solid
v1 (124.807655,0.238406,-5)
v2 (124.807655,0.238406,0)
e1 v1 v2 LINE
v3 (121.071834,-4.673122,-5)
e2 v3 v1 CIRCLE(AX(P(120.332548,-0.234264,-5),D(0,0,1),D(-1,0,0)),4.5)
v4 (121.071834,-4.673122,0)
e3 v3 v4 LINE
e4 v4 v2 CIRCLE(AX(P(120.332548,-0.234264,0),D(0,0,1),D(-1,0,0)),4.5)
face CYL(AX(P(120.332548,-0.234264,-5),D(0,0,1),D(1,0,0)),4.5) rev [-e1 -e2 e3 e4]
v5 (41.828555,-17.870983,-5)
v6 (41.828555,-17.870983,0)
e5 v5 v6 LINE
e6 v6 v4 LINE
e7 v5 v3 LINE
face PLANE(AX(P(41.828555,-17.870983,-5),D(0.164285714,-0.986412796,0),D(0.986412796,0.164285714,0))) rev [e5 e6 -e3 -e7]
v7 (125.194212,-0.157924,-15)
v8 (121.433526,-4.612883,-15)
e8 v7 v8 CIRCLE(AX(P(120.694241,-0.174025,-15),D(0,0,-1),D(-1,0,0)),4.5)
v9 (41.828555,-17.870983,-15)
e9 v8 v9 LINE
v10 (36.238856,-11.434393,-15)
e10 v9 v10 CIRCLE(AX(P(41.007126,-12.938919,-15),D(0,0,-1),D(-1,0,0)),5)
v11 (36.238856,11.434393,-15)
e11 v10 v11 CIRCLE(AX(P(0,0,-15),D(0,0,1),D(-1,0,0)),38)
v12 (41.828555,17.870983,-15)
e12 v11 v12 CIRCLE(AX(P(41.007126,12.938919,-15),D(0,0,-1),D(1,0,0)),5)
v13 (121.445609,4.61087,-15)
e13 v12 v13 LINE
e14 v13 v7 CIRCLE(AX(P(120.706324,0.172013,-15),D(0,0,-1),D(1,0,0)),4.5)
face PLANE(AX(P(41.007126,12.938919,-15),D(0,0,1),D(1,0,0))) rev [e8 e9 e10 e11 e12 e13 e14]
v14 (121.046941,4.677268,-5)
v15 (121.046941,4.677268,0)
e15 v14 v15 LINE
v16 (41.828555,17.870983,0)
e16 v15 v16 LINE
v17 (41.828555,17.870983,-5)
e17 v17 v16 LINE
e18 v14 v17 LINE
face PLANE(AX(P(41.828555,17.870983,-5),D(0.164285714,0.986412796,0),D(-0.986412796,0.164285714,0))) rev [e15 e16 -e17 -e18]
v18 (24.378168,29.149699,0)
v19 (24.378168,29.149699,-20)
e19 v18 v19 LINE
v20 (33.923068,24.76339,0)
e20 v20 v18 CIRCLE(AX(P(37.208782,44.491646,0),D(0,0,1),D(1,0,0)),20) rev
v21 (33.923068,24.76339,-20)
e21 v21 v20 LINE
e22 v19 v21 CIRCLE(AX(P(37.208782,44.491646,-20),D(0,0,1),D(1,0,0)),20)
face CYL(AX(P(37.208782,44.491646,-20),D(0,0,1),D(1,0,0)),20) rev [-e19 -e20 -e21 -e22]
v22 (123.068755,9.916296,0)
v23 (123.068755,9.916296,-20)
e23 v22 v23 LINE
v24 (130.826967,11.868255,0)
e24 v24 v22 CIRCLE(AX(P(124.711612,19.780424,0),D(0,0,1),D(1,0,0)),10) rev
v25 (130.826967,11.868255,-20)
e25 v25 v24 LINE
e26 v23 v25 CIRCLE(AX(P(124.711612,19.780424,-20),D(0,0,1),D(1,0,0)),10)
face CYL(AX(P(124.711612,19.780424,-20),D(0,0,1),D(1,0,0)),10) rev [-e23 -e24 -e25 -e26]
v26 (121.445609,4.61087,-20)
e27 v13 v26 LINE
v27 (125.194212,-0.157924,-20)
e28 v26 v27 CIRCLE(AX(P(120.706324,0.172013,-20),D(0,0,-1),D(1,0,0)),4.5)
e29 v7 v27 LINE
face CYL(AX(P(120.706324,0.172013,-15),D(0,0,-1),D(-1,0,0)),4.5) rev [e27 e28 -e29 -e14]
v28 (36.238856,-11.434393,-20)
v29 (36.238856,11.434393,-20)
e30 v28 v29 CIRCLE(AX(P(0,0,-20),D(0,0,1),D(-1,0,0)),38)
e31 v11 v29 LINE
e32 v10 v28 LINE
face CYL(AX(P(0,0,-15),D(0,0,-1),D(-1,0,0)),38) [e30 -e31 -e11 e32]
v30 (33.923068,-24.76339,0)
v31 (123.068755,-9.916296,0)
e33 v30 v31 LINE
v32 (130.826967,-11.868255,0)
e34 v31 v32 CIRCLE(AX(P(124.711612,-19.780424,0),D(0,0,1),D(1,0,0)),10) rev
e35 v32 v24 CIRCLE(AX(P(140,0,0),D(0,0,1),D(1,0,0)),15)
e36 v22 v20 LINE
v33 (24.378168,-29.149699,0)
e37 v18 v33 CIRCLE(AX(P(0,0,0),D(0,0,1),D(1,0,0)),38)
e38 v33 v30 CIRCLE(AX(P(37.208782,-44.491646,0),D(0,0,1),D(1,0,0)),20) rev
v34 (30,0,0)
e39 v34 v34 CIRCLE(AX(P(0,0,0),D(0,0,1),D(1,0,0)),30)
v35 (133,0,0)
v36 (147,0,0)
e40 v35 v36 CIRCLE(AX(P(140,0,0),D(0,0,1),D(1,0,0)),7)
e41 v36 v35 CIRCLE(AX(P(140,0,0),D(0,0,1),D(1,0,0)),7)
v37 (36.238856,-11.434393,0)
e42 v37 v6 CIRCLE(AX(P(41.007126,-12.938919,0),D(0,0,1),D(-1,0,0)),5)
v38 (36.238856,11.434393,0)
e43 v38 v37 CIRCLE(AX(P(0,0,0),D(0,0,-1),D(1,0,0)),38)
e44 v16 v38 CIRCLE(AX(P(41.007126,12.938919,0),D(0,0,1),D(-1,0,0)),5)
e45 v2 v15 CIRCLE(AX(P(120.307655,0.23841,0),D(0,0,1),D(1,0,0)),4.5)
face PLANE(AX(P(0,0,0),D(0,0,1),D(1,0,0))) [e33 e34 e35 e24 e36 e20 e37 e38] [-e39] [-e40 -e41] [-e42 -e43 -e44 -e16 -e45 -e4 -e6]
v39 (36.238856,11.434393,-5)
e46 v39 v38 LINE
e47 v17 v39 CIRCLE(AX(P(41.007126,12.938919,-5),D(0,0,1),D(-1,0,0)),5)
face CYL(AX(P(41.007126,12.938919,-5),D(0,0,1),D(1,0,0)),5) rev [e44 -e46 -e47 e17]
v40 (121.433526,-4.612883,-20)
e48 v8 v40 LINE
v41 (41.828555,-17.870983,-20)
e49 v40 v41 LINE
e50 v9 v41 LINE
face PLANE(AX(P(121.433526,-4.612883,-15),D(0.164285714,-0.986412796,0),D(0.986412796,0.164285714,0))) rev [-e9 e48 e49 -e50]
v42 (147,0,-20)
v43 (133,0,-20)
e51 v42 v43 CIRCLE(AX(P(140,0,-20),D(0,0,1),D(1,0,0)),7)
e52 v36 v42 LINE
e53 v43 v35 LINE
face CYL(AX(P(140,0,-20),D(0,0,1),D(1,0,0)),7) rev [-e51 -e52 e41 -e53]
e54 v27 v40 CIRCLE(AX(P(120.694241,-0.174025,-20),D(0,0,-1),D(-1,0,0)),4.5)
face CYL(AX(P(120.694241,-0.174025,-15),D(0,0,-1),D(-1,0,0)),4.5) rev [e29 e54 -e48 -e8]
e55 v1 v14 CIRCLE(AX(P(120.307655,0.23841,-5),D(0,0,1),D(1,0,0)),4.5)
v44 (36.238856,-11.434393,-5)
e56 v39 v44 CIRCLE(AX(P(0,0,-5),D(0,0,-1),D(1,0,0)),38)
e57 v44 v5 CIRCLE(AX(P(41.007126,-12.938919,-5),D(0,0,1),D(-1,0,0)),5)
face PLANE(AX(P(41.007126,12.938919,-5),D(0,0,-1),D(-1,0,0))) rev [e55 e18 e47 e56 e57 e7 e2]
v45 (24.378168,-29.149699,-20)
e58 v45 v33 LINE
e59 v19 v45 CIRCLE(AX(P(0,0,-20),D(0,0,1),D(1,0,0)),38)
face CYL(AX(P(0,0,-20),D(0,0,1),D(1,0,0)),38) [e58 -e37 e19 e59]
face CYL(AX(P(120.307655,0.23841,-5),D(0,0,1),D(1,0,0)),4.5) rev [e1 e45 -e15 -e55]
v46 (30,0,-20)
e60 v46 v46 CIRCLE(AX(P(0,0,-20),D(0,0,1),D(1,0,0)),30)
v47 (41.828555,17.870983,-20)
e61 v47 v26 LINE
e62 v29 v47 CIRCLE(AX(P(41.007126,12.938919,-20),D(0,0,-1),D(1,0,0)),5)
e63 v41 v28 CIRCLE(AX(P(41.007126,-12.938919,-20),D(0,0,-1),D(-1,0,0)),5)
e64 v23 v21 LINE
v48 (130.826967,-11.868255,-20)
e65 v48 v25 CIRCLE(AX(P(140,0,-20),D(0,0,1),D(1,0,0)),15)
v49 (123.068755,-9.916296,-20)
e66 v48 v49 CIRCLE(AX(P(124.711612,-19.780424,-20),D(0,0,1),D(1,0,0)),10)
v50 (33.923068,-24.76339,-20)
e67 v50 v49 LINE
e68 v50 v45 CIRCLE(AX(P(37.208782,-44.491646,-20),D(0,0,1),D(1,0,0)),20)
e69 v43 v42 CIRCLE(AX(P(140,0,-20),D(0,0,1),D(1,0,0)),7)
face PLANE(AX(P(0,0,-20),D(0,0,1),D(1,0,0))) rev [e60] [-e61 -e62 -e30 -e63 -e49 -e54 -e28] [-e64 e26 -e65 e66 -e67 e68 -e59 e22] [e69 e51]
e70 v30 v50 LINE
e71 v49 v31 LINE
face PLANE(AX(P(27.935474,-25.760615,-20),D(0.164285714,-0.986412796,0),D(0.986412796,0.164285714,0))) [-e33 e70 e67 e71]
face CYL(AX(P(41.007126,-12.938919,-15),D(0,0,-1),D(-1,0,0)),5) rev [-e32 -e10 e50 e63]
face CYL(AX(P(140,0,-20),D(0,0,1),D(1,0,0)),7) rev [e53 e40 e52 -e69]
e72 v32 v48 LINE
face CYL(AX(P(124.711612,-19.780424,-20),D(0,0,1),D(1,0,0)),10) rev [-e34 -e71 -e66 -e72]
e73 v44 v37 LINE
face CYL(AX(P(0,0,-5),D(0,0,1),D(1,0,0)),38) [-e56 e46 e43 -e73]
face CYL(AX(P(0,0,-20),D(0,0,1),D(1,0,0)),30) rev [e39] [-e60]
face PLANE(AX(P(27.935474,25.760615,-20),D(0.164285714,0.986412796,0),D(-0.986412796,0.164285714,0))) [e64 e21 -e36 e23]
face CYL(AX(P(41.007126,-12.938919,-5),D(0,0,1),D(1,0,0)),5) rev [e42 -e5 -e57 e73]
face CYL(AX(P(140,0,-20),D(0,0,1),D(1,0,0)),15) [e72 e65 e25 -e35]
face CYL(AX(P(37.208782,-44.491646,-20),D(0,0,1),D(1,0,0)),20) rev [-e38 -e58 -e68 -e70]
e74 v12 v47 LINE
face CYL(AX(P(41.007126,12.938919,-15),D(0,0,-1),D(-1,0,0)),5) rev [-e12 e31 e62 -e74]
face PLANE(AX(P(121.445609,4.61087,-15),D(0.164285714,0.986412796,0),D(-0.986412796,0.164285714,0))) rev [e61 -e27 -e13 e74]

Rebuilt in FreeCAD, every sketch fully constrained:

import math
import FreeCAD as App
import Part
import Sketcher
Q = App.Units.Quantity


def edges_at(feature, points):
    """Names of the edges that pass closest to the given points."""
    edges = feature.Shape.Edges
    near = lambda p: min(range(len(edges)), key=lambda i: edges[i].distToShape(Part.Vertex(*p))[0])
    return sorted({f"Edge{near(p) + 1}" for p in points})

doc = App.newDocument("Part")
params = doc.addObject("Spreadsheet::Sheet", "Params")
for row, (alias, value) in enumerate([
    ("sketch1_diameter", "14 mm"),
    ("sketch1_diameter2", "60 mm"),
    ("sketch1_radius", "38 mm"),
    ("sketch1_radius2", "15 mm"),
    ("pad1_length", "20 mm"),
    ("fillet_radius", "10 mm"),
    ("fillet2_radius", "20 mm"),
    ("sketch2_radius", "5 mm"),
    ("sketch2_radius2", "38 mm"),
    ("sketch2_radius3", "4.5 mm"),
    ("pocket1_length", "5 mm"),
    ("sketch3_radius", "5 mm"),
    ("sketch3_radius2", "38 mm"),
    ("sketch3_radius3", "4.5 mm"),
    ("pocket2_length", "5 mm"),
], start=1):
    params.set(f"A{row}", alias)
    params.set(f"B{row}", "=" + value)
    params.setAlias(f"B{row}", alias)

body = doc.addObject("PartDesign::Body", "Body")

# Sketch on XY plane
sketch1 = body.newObject("Sketcher::SketchObject", "Sketch")
sketch1.AttachmentSupport = (doc.getObject("XY_Plane"), [""])
sketch1.MapMode = "FlatFace"
sketch1.addGeometry([
    Part.LineSegment(App.Vector(128, 9, 0), App.Vector(28, 26, 0)),  # 0
    Part.ArcOfCircle(Part.Circle(App.Vector(0, 0, 0), App.Vector(0, 0, 1), 38), math.radians(43), math.radians(317)),  # 1
    Part.LineSegment(App.Vector(28, -26, 0), App.Vector(128, -9, 0)),  # 2
    Part.ArcOfCircle(Part.Circle(App.Vector(140, 0, 0), App.Vector(0, 0, 1), 15), math.radians(-143), math.radians(143)),  # 3
    Part.Circle(App.Vector(140, 0, 0), App.Vector(0, 0, 1), 7),  # 4
    Part.Circle(App.Vector(0, 0, 0), App.Vector(0, 0, 1), 30),  # 5
], False)
sketch1.addConstraint([
    Sketcher.Constraint("Coincident", 0, 2, 1, 1),
    Sketcher.Constraint("Coincident", 1, 2, 2, 1),
    Sketcher.Constraint("Coincident", 2, 2, 3, 1),
    Sketcher.Constraint("Coincident", 3, 2, 0, 1),
    Sketcher.Constraint("Coincident", 1, 3, -1, 1),
    Sketcher.Constraint("Coincident", 5, 3, -1, 1),
    Sketcher.Constraint("Coincident", 4, 3, 3, 3),
    Sketcher.Constraint("Symmetric", 2, 2, 3, 2, -1),
    Sketcher.Constraint("Vertical", 0, 2, 1, 2),
    Sketcher.Constraint("Diameter", 4, Q("14 mm")),
    Sketcher.Constraint("Diameter", 5, Q("60 mm")),
    Sketcher.Constraint("Radius", 1, Q("38 mm")),
    Sketcher.Constraint("Radius", 3, Q("15 mm")),
    Sketcher.Constraint("DistanceX", -1, 1, 3, 3, Q("140 mm")),
    Sketcher.Constraint("DistanceY", 2, 2, 0, 2, Q("34.845001 mm")),
    Sketcher.Constraint("DistanceY", 1, 2, 0, 2, Q("51.521231 mm")),
])
sketch1.setExpression("Constraints[9]", "Params.sketch1_diameter")
sketch1.setExpression("Constraints[10]", "Params.sketch1_diameter2")
sketch1.setExpression("Constraints[11]", "Params.sketch1_radius")
sketch1.setExpression("Constraints[12]", "Params.sketch1_radius2")
pad1 = body.newObject("PartDesign::Pad", "Pad")
pad1.Profile = sketch1
pad1.setExpression("Length", "Params.pad1_length")
pad1.Reversed = True
doc.recompute()

fillet = body.newObject("PartDesign::Fillet", "Fillet")
fillet.Base = (pad1, edges_at(pad1, [(128.064, 9.084, -10), (128.064, -9.084, -10)]))
fillet.setExpression("Radius", "Params.fillet_radius")
doc.recompute()

fillet2 = body.newObject("PartDesign::Fillet", "Fillet001")
fillet2.Base = (fillet, edges_at(fillet, [(27.935, 25.761, -10), (27.935, -25.761, -10)]))
fillet2.setExpression("Radius", "Params.fillet2_radius")

# Sketch on XY plane
sketch2 = body.newObject("Sketcher::SketchObject", "Sketch001")
sketch2.AttachmentSupport = (doc.getObject("XY_Plane"), [""])
sketch2.MapMode = "FlatFace"
sketch2.addGeometry([
    Part.LineSegment(App.Vector(121, 4.7, 0), App.Vector(41.8, 17.9, 0)),  # 0
    Part.ArcOfCircle(Part.Circle(App.Vector(41, 12.9, 0), App.Vector(0, 0, 1), 5), math.radians(81), math.radians(198)),  # 1
    Part.ArcOfCircle(Part.Circle(App.Vector(0, 0, 0), App.Vector(0, 0, 1), 38), math.radians(-18), math.radians(18)),  # 2
    Part.ArcOfCircle(Part.Circle(App.Vector(41, -12.9, 0), App.Vector(0, 0, 1), 5), math.radians(162), math.radians(279)),  # 3
    Part.LineSegment(App.Vector(41.8, -17.9, 0), App.Vector(121.1, -4.7, 0)),  # 4
    Part.ArcOfCircle(Part.Circle(App.Vector(120.3, -0.2, 0), App.Vector(0, 0, 1), 4.5), math.radians(-81), math.radians(6)),  # 5
    Part.ArcOfCircle(Part.Circle(App.Vector(120.3, 0.2, 0), App.Vector(0, 0, 1), 4.5), math.radians(0), math.radians(81)),  # 6
], False)
sketch2.addConstraint([
    Sketcher.Constraint("Tangent", 0, 2, 1, 1),
    Sketcher.Constraint("Tangent", 1, 2, 2, 2),
    Sketcher.Constraint("Tangent", 2, 1, 3, 1),
    Sketcher.Constraint("Tangent", 3, 2, 4, 1),
    Sketcher.Constraint("Tangent", 4, 2, 5, 1),
    Sketcher.Constraint("Coincident", 5, 2, 6, 1),
    Sketcher.Constraint("Tangent", 6, 2, 0, 1),
    Sketcher.Constraint("Coincident", 2, 3, -1, 1),
    Sketcher.Constraint("Equal", 1, 3),
    Sketcher.Constraint("Equal", 5, 6),
    Sketcher.Constraint("Symmetric", 0, 2, 3, 2, -1),
    Sketcher.Constraint("Radius", 1, Q("5 mm")),
    Sketcher.Constraint("Radius", 2, Q("38 mm")),
    Sketcher.Constraint("Radius", 5, Q("4.5 mm")),
    Sketcher.Constraint("DistanceY", 3, 3, 0, 2, Q("30.809901 mm")),
    Sketcher.Constraint("DistanceX", 0, 2, 6, 3, Q("78.4791 mm")),
    Sketcher.Constraint("DistanceX", 1, 2, 0, 2, Q("5.589699 mm")),
    Sketcher.Constraint("DistanceX", -1, 1, 5, 3, Q("120.332548 mm")),
])
sketch2.setExpression("Constraints[11]", "Params.sketch2_radius")
sketch2.setExpression("Constraints[12]", "Params.sketch2_radius2")
sketch2.setExpression("Constraints[13]", "Params.sketch2_radius3")
pocket1 = body.newObject("PartDesign::Pocket", "Pocket")
pocket1.Profile = sketch2
pocket1.setExpression("Length", "Params.pocket1_length")

# Sketch on XY plane
sketch3 = body.newObject("Sketcher::SketchObject", "Sketch002")
sketch3.AttachmentSupport = (doc.getObject("XY_Plane"), [""])
sketch3.MapMode = "FlatFace"
sketch3.AttachmentOffset = App.Placement(App.Vector(0, 0, -20), App.Rotation())
sketch3.addGeometry([
    Part.LineSegment(App.Vector(41.8, 17.9, 0), App.Vector(121.4, 4.6, 0)),  # 0
    Part.ArcOfCircle(Part.Circle(App.Vector(120.7, 0.2, 0), App.Vector(0, 0, 1), 4.5), math.radians(-4), math.radians(81)),  # 1
    Part.ArcOfCircle(Part.Circle(App.Vector(120.7, -0.2, 0), App.Vector(0, 0, 1), 4.5), math.radians(-81), math.radians(0)),  # 2
    Part.LineSegment(App.Vector(121.4, -4.6, 0), App.Vector(41.8, -17.9, 0)),  # 3
    Part.ArcOfCircle(Part.Circle(App.Vector(41, -12.9, 0), App.Vector(0, 0, 1), 5), math.radians(162), math.radians(279)),  # 4
    Part.ArcOfCircle(Part.Circle(App.Vector(0, 0, 0), App.Vector(0, 0, 1), 38), math.radians(-18), math.radians(18)),  # 5
    Part.ArcOfCircle(Part.Circle(App.Vector(41, 12.9, 0), App.Vector(0, 0, 1), 5), math.radians(81), math.radians(198)),  # 6
], False)
sketch3.addConstraint([
    Sketcher.Constraint("Tangent", 0, 2, 1, 2),
    Sketcher.Constraint("Coincident", 1, 1, 2, 2),
    Sketcher.Constraint("Tangent", 2, 1, 3, 1),
    Sketcher.Constraint("Tangent", 3, 2, 4, 2),
    Sketcher.Constraint("Tangent", 4, 1, 5, 1),
    Sketcher.Constraint("Tangent", 5, 2, 6, 2),
    Sketcher.Constraint("Tangent", 6, 1, 0, 1),
    Sketcher.Constraint("Coincident", 5, 3, -1, 1),
    Sketcher.Constraint("Equal", 1, 2),
    Sketcher.Constraint("Equal", 4, 6),
    Sketcher.Constraint("Symmetric", 3, 2, 6, 1, -1),
    Sketcher.Constraint("Radius", 4, Q("5 mm")),
    Sketcher.Constraint("Radius", 5, Q("38 mm")),
    Sketcher.Constraint("Radius", 1, Q("4.5 mm")),
    Sketcher.Constraint("DistanceY", 2, 3, 1, 1, Q("0.016101 mm")),
    Sketcher.Constraint("DistanceX", 4, 3, 2, 1, Q("80.4264 mm")),
    Sketcher.Constraint("DistanceY", 3, 2, 6, 3, Q("30.809901 mm")),
    Sketcher.Constraint("DistanceY", 3, 2, 2, 1, Q("13.2581 mm")),
])
sketch3.setExpression("Constraints[11]", "Params.sketch3_radius")
sketch3.setExpression("Constraints[12]", "Params.sketch3_radius2")
sketch3.setExpression("Constraints[13]", "Params.sketch3_radius3")
pocket2 = body.newObject("PartDesign::Pocket", "Pocket001")
pocket2.Profile = sketch3
pocket2.setExpression("Length", "Params.pocket2_length")
pocket2.Reversed = True

doc.recompute()
